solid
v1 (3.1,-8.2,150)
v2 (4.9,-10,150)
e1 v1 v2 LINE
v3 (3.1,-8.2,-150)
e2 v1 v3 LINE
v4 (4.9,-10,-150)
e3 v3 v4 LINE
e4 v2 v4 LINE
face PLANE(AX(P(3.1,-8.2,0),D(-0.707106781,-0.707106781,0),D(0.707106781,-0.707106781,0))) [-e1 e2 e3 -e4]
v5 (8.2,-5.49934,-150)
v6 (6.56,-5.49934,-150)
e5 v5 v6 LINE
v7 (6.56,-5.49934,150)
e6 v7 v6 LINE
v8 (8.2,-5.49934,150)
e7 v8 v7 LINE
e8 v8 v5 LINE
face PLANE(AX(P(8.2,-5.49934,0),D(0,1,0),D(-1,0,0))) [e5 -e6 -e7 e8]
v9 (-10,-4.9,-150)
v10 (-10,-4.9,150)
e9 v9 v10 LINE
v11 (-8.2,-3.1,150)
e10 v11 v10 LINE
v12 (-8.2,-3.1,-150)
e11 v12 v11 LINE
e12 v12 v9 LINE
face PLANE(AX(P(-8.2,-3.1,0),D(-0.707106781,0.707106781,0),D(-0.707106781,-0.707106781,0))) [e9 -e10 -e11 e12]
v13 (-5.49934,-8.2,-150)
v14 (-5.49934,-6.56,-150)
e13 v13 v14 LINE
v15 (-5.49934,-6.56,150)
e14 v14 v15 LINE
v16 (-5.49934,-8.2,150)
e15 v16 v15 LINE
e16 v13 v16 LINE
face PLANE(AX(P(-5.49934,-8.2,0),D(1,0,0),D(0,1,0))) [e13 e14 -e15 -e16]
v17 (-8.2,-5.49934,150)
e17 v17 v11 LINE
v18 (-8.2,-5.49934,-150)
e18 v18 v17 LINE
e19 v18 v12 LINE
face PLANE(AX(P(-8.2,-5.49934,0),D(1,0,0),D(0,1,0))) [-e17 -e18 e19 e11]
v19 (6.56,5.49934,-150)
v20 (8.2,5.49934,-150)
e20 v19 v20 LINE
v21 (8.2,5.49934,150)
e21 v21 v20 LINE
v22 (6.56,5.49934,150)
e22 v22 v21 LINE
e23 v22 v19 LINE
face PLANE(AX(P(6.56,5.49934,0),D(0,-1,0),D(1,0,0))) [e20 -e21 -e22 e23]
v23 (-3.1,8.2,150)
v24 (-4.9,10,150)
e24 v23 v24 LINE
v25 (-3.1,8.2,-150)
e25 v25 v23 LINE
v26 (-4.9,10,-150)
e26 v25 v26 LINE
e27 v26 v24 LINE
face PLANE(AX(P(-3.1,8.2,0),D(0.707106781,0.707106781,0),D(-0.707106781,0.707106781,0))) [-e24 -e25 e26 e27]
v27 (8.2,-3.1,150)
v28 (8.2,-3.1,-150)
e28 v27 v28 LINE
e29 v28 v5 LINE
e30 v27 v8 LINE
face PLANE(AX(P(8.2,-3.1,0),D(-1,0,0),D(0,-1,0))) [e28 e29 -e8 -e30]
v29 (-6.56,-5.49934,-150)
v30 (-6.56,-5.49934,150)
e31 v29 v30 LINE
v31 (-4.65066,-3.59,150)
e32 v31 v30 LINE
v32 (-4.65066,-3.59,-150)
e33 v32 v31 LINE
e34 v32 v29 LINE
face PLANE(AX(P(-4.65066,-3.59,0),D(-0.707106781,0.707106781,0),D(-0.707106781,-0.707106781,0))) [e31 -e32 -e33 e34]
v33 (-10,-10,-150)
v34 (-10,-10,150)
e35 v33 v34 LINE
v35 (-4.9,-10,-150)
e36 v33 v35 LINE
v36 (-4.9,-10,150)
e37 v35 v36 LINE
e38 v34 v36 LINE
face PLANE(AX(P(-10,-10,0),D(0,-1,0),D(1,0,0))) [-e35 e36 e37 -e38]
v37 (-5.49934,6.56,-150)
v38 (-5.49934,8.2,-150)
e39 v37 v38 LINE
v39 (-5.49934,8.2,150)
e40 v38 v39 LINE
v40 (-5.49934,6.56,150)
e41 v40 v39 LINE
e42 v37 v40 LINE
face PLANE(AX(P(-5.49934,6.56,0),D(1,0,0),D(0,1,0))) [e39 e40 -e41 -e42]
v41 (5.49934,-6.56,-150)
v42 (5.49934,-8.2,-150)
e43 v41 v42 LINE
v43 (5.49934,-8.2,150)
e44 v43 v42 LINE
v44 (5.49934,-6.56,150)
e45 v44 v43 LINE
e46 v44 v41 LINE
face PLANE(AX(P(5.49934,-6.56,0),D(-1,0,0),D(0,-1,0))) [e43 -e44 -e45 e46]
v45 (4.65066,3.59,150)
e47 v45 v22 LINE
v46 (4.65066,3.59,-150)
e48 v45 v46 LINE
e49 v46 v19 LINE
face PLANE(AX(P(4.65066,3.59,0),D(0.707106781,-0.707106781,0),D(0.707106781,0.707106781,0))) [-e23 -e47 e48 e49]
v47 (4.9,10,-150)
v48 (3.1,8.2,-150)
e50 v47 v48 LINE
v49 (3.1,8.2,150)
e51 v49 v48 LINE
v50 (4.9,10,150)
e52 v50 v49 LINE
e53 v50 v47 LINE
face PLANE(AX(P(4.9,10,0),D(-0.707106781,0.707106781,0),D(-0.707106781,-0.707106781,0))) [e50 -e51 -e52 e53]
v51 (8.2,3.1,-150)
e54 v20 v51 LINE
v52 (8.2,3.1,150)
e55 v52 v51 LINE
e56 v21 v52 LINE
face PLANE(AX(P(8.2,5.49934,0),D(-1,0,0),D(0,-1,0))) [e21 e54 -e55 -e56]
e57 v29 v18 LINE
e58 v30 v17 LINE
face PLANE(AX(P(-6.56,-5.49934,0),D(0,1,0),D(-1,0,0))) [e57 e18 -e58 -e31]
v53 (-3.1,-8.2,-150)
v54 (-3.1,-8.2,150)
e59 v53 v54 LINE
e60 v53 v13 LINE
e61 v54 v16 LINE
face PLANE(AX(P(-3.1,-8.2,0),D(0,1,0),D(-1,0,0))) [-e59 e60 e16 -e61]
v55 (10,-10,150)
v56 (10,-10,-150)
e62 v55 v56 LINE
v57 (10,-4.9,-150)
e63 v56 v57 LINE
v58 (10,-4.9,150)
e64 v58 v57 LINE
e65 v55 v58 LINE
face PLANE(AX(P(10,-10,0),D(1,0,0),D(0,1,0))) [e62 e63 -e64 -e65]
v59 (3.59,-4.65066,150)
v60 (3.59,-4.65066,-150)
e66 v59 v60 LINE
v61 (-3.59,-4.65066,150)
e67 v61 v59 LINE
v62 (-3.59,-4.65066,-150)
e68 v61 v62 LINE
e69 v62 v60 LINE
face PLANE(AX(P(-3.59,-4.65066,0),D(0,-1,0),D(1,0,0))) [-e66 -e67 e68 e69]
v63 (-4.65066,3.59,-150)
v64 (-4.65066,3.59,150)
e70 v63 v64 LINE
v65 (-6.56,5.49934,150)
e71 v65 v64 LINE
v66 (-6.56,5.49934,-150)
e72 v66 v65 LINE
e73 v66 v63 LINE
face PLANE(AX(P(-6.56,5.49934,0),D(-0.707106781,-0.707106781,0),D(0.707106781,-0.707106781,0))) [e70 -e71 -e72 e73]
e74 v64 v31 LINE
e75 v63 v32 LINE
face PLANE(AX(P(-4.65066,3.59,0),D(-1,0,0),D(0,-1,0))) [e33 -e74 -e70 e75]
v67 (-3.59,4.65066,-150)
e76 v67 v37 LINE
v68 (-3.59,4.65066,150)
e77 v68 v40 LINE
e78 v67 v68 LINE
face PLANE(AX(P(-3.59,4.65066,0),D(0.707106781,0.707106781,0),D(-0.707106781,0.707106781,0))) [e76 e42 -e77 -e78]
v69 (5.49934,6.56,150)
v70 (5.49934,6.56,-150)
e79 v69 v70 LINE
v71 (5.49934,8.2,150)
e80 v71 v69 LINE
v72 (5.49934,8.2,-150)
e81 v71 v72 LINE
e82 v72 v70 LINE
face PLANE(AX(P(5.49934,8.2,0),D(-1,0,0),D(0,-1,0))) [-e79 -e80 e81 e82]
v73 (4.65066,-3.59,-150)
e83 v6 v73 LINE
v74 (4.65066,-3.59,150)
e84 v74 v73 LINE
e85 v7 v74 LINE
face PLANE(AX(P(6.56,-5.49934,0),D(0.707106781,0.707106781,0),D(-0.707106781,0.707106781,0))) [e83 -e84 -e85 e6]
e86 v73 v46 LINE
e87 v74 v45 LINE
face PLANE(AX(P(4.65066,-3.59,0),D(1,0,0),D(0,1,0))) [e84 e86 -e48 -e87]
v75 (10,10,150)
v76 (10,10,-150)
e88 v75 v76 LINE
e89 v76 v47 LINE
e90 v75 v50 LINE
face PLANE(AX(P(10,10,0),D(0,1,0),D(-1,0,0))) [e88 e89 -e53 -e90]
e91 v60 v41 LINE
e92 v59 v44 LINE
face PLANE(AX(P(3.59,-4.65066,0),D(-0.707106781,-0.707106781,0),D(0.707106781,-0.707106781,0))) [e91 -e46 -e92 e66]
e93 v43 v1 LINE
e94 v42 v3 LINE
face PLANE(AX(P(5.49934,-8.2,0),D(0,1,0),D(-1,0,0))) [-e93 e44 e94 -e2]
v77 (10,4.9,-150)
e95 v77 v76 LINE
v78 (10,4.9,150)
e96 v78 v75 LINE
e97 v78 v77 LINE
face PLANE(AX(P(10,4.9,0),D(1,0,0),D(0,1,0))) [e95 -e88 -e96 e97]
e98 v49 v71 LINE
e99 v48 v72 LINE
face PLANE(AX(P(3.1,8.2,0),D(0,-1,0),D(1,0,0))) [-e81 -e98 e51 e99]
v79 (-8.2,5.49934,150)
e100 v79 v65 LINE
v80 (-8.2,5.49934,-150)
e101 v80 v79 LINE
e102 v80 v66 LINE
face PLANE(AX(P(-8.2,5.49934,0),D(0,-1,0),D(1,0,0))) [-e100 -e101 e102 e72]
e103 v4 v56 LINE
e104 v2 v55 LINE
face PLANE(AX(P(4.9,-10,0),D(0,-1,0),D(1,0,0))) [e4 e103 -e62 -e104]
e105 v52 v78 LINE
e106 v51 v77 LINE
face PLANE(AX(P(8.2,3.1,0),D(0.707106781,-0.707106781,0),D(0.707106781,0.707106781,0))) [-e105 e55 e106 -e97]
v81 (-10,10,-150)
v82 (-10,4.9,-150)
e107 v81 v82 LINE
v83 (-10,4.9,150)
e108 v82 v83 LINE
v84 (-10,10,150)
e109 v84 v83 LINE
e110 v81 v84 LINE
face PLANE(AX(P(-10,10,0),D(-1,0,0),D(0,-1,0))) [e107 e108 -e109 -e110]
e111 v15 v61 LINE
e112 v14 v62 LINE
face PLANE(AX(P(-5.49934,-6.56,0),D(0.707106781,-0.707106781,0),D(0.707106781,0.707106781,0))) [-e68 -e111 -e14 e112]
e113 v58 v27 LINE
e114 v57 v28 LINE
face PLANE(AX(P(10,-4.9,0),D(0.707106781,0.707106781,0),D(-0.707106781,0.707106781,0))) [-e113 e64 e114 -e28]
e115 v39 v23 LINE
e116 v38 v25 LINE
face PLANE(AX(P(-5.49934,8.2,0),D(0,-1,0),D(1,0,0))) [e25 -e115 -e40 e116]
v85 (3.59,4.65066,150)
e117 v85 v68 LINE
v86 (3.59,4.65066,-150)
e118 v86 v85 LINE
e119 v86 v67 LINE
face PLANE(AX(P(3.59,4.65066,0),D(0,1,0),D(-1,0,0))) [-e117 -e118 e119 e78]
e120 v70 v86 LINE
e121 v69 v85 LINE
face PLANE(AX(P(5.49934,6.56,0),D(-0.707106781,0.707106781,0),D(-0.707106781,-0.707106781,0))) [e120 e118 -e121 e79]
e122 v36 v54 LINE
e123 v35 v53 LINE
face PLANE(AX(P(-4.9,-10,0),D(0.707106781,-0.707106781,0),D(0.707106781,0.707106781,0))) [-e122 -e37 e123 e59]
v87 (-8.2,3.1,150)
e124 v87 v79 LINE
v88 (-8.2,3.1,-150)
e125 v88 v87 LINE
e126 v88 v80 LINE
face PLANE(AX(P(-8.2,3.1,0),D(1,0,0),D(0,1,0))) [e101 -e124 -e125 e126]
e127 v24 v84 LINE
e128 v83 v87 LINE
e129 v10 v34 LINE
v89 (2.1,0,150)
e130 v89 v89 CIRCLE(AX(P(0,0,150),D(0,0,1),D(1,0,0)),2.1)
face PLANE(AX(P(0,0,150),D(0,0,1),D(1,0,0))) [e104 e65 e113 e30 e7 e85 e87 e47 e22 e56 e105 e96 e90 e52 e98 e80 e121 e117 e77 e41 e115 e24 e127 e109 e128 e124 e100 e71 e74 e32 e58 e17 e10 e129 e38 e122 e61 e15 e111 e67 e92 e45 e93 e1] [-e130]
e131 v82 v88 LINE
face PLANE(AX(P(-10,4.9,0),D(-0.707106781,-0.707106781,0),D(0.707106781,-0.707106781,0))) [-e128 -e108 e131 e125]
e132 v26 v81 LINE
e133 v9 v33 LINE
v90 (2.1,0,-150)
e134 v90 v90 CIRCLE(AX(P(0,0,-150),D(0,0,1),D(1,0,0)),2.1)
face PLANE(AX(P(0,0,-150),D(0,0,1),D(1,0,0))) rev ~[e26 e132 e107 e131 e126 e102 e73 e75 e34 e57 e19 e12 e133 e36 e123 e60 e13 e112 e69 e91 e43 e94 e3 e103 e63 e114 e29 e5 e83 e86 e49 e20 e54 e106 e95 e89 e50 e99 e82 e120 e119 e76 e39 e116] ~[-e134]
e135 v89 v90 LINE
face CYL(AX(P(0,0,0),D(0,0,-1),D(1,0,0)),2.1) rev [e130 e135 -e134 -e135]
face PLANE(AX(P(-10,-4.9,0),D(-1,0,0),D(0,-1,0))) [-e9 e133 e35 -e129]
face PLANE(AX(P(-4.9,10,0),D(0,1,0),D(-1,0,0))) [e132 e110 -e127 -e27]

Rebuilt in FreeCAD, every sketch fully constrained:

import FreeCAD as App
import Part
import Sketcher
from FreeCAD import Vector

doc = App.newDocument("Part")
params = doc.addObject("Spreadsheet::Sheet", "Params")
for row, (alias, value) in enumerate([
    ("sketch1_diameter", "4.2 mm"),
    ("sketch1_width", "5.1 mm"),
    ("sketch1_width2", "7.18 mm"),
    ("sketch1_width3", "1.64 mm"),
    ("pad1_length", "300 mm"),
], start=1):
    params.set(f"A{row}", alias)
    params.set(f"B{row}", "=" + value)
    params.setAlias(f"B{row}", alias)

body = doc.addObject("PartDesign::Body", "Body")

# Sketch on XY plane
sketch1 = body.newObject("Sketcher::SketchObject", "Sketch")
sketch1.AttachmentSupport = (doc.getObject("XY_Plane"), [""])
sketch1.MapMode = "FlatFace"
sketch1.addGeometry(Part.LineSegment(Vector(5.5, 6.6, 0), Vector(3.6, 4.7, 0)), False)
sketch1.addGeometry(Part.LineSegment(Vector(3.6, 4.7, 0), Vector(-3.6, 4.7, 0)), False)
sketch1.addGeometry(Part.LineSegment(Vector(-3.6, 4.7, 0), Vector(-5.5, 6.6, 0)), False)
sketch1.addGeometry(Part.LineSegment(Vector(-5.5, 6.6, 0), Vector(-5.5, 8.2, 0)), False)
sketch1.addGeometry(Part.LineSegment(Vector(-5.5, 8.2, 0), Vector(-3.1, 8.2, 0)), False)
sketch1.addGeometry(Part.LineSegment(Vector(-3.1, 8.2, 0), Vector(-4.9, 10, 0)), False)
sketch1.addGeometry(Part.LineSegment(Vector(-4.9, 10, 0), Vector(-10, 10, 0)), False)
sketch1.addGeometry(Part.LineSegment(Vector(-10, 10, 0), Vector(-10, 4.9, 0)), False)
sketch1.addGeometry(Part.LineSegment(Vector(-10, 4.9, 0), Vector(-8.2, 3.1, 0)), False)
sketch1.addGeometry(Part.LineSegment(Vector(-8.2, 3.1, 0), Vector(-8.2, 5.5, 0)), False)
sketch1.addGeometry(Part.LineSegment(Vector(-8.2, 5.5, 0), Vector(-6.6, 5.5, 0)), False)
sketch1.addGeometry(Part.LineSegment(Vector(-6.6, 5.5, 0), Vector(-4.7, 3.6, 0)), False)
sketch1.addGeometry(Part.LineSegment(Vector(-4.7, 3.6, 0), Vector(-4.7, -3.6, 0)), False)
sketch1.addGeometry(Part.LineSegment(Vector(-4.7, -3.6, 0), Vector(-6.6, -5.5, 0)), False)
sketch1.addGeometry(Part.LineSegment(Vector(-6.6, -5.5, 0), Vector(-8.2, -5.5, 0)), False)
sketch1.addGeometry(Part.LineSegment(Vector(-8.2, -5.5, 0), Vector(-8.2, -3.1, 0)), False)
sketch1.addGeometry(Part.LineSegment(Vector(-8.2, -3.1, 0), Vector(-10, -4.9, 0)), False)
sketch1.addGeometry(Part.LineSegment(Vector(-10, -4.9, 0), Vector(-10, -10, 0)), False)
sketch1.addGeometry(Part.LineSegment(Vector(-10, -10, 0), Vector(-4.9, -10, 0)), False)
sketch1.addGeometry(Part.LineSegment(Vector(-4.9, -10, 0), Vector(-3.1, -8.2, 0)), False)
sketch1.addGeometry(Part.LineSegment(Vector(-3.1, -8.2, 0), Vector(-5.5, -8.2, 0)), False)
sketch1.addGeometry(Part.LineSegment(Vector(-5.5, -8.2, 0), Vector(-5.5, -6.6, 0)), False)
sketch1.addGeometry(Part.LineSegment(Vector(-5.5, -6.6, 0), Vector(-3.6, -4.7, 0)), False)
sketch1.addGeometry(Part.LineSegment(Vector(-3.6, -4.7, 0), Vector(3.6, -4.7, 0)), False)
sketch1.addGeometry(Part.LineSegment(Vector(3.6, -4.7, 0), Vector(5.5, -6.6, 0)), False)
sketch1.addGeometry(Part.LineSegment(Vector(5.5, -6.6, 0), Vector(5.5, -8.2, 0)), False)
sketch1.addGeometry(Part.LineSegment(Vector(5.5, -8.2, 0), Vector(3.1, -8.2, 0)), False)
sketch1.addGeometry(Part.LineSegment(Vector(3.1, -8.2, 0), Vector(4.9, -10, 0)), False)
sketch1.addGeometry(Part.LineSegment(Vector(4.9, -10, 0), Vector(10, -10, 0)), False)
sketch1.addGeometry(Part.LineSegment(Vector(10, -10, 0), Vector(10, -4.9, 0)), False)
sketch1.addGeometry(Part.LineSegment(Vector(10, -4.9, 0), Vector(8.2, -3.1, 0)), False)
sketch1.addGeometry(Part.LineSegment(Vector(8.2, -3.1, 0), Vector(8.2, -5.5, 0)), False)
sketch1.addGeometry(Part.LineSegment(Vector(8.2, -5.5, 0), Vector(6.6, -5.5, 0)), False)
sketch1.addGeometry(Part.LineSegment(Vector(6.6, -5.5, 0), Vector(4.7, -3.6, 0)), False)
sketch1.addGeometry(Part.LineSegment(Vector(4.7, -3.6, 0), Vector(4.7, 3.6, 0)), False)
sketch1.addGeometry(Part.LineSegment(Vector(4.7, 3.6, 0), Vector(6.6, 5.5, 0)), False)
sketch1.addGeometry(Part.LineSegment(Vector(6.6, 5.5, 0), Vector(8.2, 5.5, 0)), False)
sketch1.addGeometry(Part.LineSegment(Vector(8.2, 5.5, 0), Vector(8.2, 3.1, 0)), False)
sketch1.addGeometry(Part.LineSegment(Vector(8.2, 3.1, 0), Vector(10, 4.9, 0)), False)
sketch1.addGeometry(Part.LineSegment(Vector(10, 4.9, 0), Vector(10, 10, 0)), False)
sketch1.addGeometry(Part.LineSegment(Vector(10, 10, 0), Vector(4.9, 10, 0)), False)
sketch1.addGeometry(Part.LineSegment(Vector(4.9, 10, 0), Vector(3.1, 8.2, 0)), False)
sketch1.addGeometry(Part.LineSegment(Vector(3.1, 8.2, 0), Vector(5.5, 8.2, 0)), False)
sketch1.addGeometry(Part.LineSegment(Vector(5.5, 8.2, 0), Vector(5.5, 6.6, 0)), False)
sketch1.addGeometry(Part.Circle(Vector(0, 0, 0), Vector(0, 0, 1), 2.1), False)
sketch1.addConstraint(Sketcher.Constraint("Coincident", 0, 2, 1, 1))
sketch1.addConstraint(Sketcher.Constraint("Coincident", 1, 2, 2, 1))
sketch1.addConstraint(Sketcher.Constraint("Coincident", 2, 2, 3, 1))
sketch1.addConstraint(Sketcher.Constraint("Coincident", 3, 2, 4, 1))
sketch1.addConstraint(Sketcher.Constraint("Coincident", 4, 2, 5, 1))
sketch1.addConstraint(Sketcher.Constraint("Coincident", 5, 2, 6, 1))
sketch1.addConstraint(Sketcher.Constraint("Coincident", 6, 2, 7, 1))
sketch1.addConstraint(Sketcher.Constraint("Coincident", 7, 2, 8, 1))
sketch1.addConstraint(Sketcher.Constraint("Coincident", 8, 2, 9, 1))
sketch1.addConstraint(Sketcher.Constraint("Coincident", 9, 2, 10, 1))
sketch1.addConstraint(Sketcher.Constraint("Coincident", 10, 2, 11, 1))
sketch1.addConstraint(Sketcher.Constraint("Coincident", 11, 2, 12, 1))
sketch1.addConstraint(Sketcher.Constraint("Coincident", 12, 2, 13, 1))
sketch1.addConstraint(Sketcher.Constraint("Coincident", 13, 2, 14, 1))
sketch1.addConstraint(Sketcher.Constraint("Coincident", 14, 2, 15, 1))
sketch1.addConstraint(Sketcher.Constraint("Coincident", 15, 2, 16, 1))
sketch1.addConstraint(Sketcher.Constraint("Coincident", 16, 2, 17, 1))
sketch1.addConstraint(Sketcher.Constraint("Coincident", 17, 2, 18, 1))
sketch1.addConstraint(Sketcher.Constraint("Coincident", 18, 2, 19, 1))
sketch1.addConstraint(Sketcher.Constraint("Coincident", 19, 2, 20, 1))
sketch1.addConstraint(Sketcher.Constraint("Coincident", 20, 2, 21, 1))
sketch1.addConstraint(Sketcher.Constraint("Coincident", 21, 2, 22, 1))
sketch1.addConstraint(Sketcher.Constraint("Coincident", 22, 2, 23, 1))
sketch1.addConstraint(Sketcher.Constraint("Coincident", 23, 2, 24, 1))
sketch1.addConstraint(Sketcher.Constraint("Coincident", 24, 2, 25, 1))
sketch1.addConstraint(Sketcher.Constraint("Coincident", 25, 2, 26, 1))
sketch1.addConstraint(Sketcher.Constraint("Coincident", 26, 2, 27, 1))
sketch1.addConstraint(Sketcher.Constraint("Coincident", 27, 2, 28, 1))
sketch1.addConstraint(Sketcher.Constraint("Coincident", 28, 2, 29, 1))
sketch1.addConstraint(Sketcher.Constraint("Coincident", 29, 2, 30, 1))
sketch1.addConstraint(Sketcher.Constraint("Coincident", 30, 2, 31, 1))
sketch1.addConstraint(Sketcher.Constraint("Coincident", 31, 2, 32, 1))
sketch1.addConstraint(Sketcher.Constraint("Coincident", 32, 2, 33, 1))
sketch1.addConstraint(Sketcher.Constraint("Coincident", 33, 2, 34, 1))
sketch1.addConstraint(Sketcher.Constraint("Coincident", 34, 2, 35, 1))
sketch1.addConstraint(Sketcher.Constraint("Coincident", 35, 2, 36, 1))
sketch1.addConstraint(Sketcher.Constraint("Coincident", 36, 2, 37, 1))
sketch1.addConstraint(Sketcher.Constraint("Coincident", 37, 2, 38, 1))
sketch1.addConstraint(Sketcher.Constraint("Coincident", 38, 2, 39, 1))
sketch1.addConstraint(Sketcher.Constraint("Coincident", 39, 2, 40, 1))
sketch1.addConstraint(Sketcher.Constraint("Coincident", 40, 2, 41, 1))
sketch1.addConstraint(Sketcher.Constraint("Coincident", 41, 2, 42, 1))
sketch1.addConstraint(Sketcher.Constraint("Coincident", 42, 2, 43, 1))
sketch1.addConstraint(Sketcher.Constraint("Coincident", 43, 2, 0, 1))
sketch1.addConstraint(Sketcher.Constraint("Horizontal", 1))
sketch1.addConstraint(Sketcher.Constraint("Vertical", 3))
sketch1.addConstraint(Sketcher.Constraint("Horizontal", 4))
sketch1.addConstraint(Sketcher.Constraint("Horizontal", 6))
sketch1.addConstraint(Sketcher.Constraint("Vertical", 7))
sketch1.addConstraint(Sketcher.Constraint("Vertical", 9))
sketch1.addConstraint(Sketcher.Constraint("Horizontal", 10))
sketch1.addConstraint(Sketcher.Constraint("Vertical", 12))
sketch1.addConstraint(Sketcher.Constraint("Horizontal", 14))
sketch1.addConstraint(Sketcher.Constraint("Vertical", 15))
sketch1.addConstraint(Sketcher.Constraint("Vertical", 17))
sketch1.addConstraint(Sketcher.Constraint("Horizontal", 18))
sketch1.addConstraint(Sketcher.Constraint("Horizontal", 20))
sketch1.addConstraint(Sketcher.Constraint("Vertical", 21))
sketch1.addConstraint(Sketcher.Constraint("Horizontal", 23))
sketch1.addConstraint(Sketcher.Constraint("Vertical", 25))
sketch1.addConstraint(Sketcher.Constraint("Horizontal", 26))
sketch1.addConstraint(Sketcher.Constraint("Horizontal", 28))
sketch1.addConstraint(Sketcher.Constraint("Vertical", 29))
sketch1.addConstraint(Sketcher.Constraint("Vertical", 31))
sketch1.addConstraint(Sketcher.Constraint("Horizontal", 32))
sketch1.addConstraint(Sketcher.Constraint("Vertical", 34))
sketch1.addConstraint(Sketcher.Constraint("Horizontal", 36))
sketch1.addConstraint(Sketcher.Constraint("Vertical", 37))
sketch1.addConstraint(Sketcher.Constraint("Vertical", 39))
sketch1.addConstraint(Sketcher.Constraint("Horizontal", 40))
sketch1.addConstraint(Sketcher.Constraint("Horizontal", 42))
sketch1.addConstraint(Sketcher.Constraint("Vertical", 43))
sketch1.addConstraint(Sketcher.Constraint("Coincident", 44, 3, -1, 1))
sketch1.addConstraint(Sketcher.Constraint("Symmetric", 0, 2, 22, 2, -1, 1))
sketch1.addConstraint(Sketcher.Constraint("Symmetric", 2, 2, 24, 2, -1, 1))
sketch1.addConstraint(Sketcher.Constraint("Symmetric", 4, 2, 26, 2, -1, 1))
sketch1.addConstraint(Sketcher.Constraint("Symmetric", 5, 2, 27, 2, -1, 1))
sketch1.addConstraint(Sketcher.Constraint("Symmetric", 7, 2, 29, 2, -1, 1))
sketch1.addConstraint(Sketcher.Constraint("Symmetric", 8, 2, 30, 2, -1, 1))
sketch1.addConstraint(Sketcher.Constraint("Symmetric", 10, 2, 32, 2, -1, 1))
sketch1.addConstraint(Sketcher.Constraint("Symmetric", 11, 2, 33, 2, -1, 1))
sketch1.addConstraint(Sketcher.Constraint("Symmetric", 13, 2, 35, 2, -1, 1))
sketch1.addConstraint(Sketcher.Constraint("Symmetric", 15, 2, 37, 2, -1, 1))
sketch1.addConstraint(Sketcher.Constraint("Symmetric", 16, 2, 38, 2, -1, 1))
sketch1.addConstraint(Sketcher.Constraint("Symmetric", 18, 2, 40, 2, -1, 1))
sketch1.addConstraint(Sketcher.Constraint("Symmetric", 19, 2, 41, 2, -1, 1))
sketch1.addConstraint(Sketcher.Constraint("Symmetric", 21, 2, 43, 2, -1, 1))
sketch1.addConstraint(Sketcher.Constraint("Symmetric", 21, 2, 24, 2, -2))
sketch1.addConstraint(Sketcher.Constraint("Symmetric", 19, 2, 26, 2, -2))
sketch1.addConstraint(Sketcher.Constraint("Symmetric", 18, 2, 27, 2, -2))
sketch1.addConstraint(Sketcher.Constraint("Symmetric", 16, 2, 29, 2, -2))
sketch1.addConstraint(Sketcher.Constraint("Symmetric", 15, 2, 30, 2, -2))
sketch1.addConstraint(Sketcher.Constraint("Symmetric", 13, 2, 32, 2, -2))
sketch1.addConstraint(Sketcher.Constraint("Perpendicular", 0, 2))
sketch1.addConstraint(Sketcher.Constraint("Parallel", 2, 5))
sketch1.addConstraint(Sketcher.Constraint("Parallel", 5, 8))
sketch1.addConstraint(Sketcher.Constraint("Parallel", 8, 11))
sketch1.addConstraint(Sketcher.Constraint("Perpendicular", 11, 13))
sketch1.addConstraint(Sketcher.Constraint("Parallel", 13, 16))
sketch1.addConstraint(Sketcher.Constraint("Perpendicular", 22, 24))
sketch1.addConstraint(Sketcher.Constraint("Perpendicular", 33, 35))
sketch1.addConstraint(Sketcher.Constraint("Equal", 36, 3))
sketch1.addConstraint(Sketcher.Constraint("Equal", 40, 7))
sketch1.addConstraint(Sketcher.Constraint("Equal", 42, 9))
sketch1.addConstraint(Sketcher.Constraint("Equal", 23, 12))
sketch1.addConstraint(Sketcher.Constraint("Equal", 5, 8))
sketch1.addConstraint(Sketcher.Constraint("Equal", 2, 11))
sketch1.addConstraint(Sketcher.Constraint("Diameter", 44, 4.2))
sketch1.addConstraint(Sketcher.Constraint("DistanceX", 6, 2, 6, 1, 5.1))
sketch1.addConstraint(Sketcher.Constraint("DistanceY", -1, 1, 5, 2, 10.0))
sketch1.addConstraint(Sketcher.Constraint("DistanceY", 16, 2, 8, 2, 8.0))
sketch1.addConstraint(Sketcher.Constraint("DistanceX", 1, 2, 1, 1, 7.18))
sketch1.addConstraint(Sketcher.Constraint("DistanceX", 10, 1, 10, 2, 1.64))
sketch1.addConstraint(Sketcher.Constraint("DistanceX", 4, 1, 4, 2, 2.39934))
sketch1.setExpression("Constraints[107]", "Params.sketch1_diameter")
sketch1.setExpression("Constraints[108]", "Params.sketch1_width")
sketch1.setExpression("Constraints[111]", "Params.sketch1_width2")
sketch1.setExpression("Constraints[112]", "Params.sketch1_width3")
pad1 = body.newObject("PartDesign::Pad", "Pad")
pad1.Profile = sketch1
pad1.setExpression("Length", "Params.pad1_length")
pad1.Midplane = True

doc.recompute()
